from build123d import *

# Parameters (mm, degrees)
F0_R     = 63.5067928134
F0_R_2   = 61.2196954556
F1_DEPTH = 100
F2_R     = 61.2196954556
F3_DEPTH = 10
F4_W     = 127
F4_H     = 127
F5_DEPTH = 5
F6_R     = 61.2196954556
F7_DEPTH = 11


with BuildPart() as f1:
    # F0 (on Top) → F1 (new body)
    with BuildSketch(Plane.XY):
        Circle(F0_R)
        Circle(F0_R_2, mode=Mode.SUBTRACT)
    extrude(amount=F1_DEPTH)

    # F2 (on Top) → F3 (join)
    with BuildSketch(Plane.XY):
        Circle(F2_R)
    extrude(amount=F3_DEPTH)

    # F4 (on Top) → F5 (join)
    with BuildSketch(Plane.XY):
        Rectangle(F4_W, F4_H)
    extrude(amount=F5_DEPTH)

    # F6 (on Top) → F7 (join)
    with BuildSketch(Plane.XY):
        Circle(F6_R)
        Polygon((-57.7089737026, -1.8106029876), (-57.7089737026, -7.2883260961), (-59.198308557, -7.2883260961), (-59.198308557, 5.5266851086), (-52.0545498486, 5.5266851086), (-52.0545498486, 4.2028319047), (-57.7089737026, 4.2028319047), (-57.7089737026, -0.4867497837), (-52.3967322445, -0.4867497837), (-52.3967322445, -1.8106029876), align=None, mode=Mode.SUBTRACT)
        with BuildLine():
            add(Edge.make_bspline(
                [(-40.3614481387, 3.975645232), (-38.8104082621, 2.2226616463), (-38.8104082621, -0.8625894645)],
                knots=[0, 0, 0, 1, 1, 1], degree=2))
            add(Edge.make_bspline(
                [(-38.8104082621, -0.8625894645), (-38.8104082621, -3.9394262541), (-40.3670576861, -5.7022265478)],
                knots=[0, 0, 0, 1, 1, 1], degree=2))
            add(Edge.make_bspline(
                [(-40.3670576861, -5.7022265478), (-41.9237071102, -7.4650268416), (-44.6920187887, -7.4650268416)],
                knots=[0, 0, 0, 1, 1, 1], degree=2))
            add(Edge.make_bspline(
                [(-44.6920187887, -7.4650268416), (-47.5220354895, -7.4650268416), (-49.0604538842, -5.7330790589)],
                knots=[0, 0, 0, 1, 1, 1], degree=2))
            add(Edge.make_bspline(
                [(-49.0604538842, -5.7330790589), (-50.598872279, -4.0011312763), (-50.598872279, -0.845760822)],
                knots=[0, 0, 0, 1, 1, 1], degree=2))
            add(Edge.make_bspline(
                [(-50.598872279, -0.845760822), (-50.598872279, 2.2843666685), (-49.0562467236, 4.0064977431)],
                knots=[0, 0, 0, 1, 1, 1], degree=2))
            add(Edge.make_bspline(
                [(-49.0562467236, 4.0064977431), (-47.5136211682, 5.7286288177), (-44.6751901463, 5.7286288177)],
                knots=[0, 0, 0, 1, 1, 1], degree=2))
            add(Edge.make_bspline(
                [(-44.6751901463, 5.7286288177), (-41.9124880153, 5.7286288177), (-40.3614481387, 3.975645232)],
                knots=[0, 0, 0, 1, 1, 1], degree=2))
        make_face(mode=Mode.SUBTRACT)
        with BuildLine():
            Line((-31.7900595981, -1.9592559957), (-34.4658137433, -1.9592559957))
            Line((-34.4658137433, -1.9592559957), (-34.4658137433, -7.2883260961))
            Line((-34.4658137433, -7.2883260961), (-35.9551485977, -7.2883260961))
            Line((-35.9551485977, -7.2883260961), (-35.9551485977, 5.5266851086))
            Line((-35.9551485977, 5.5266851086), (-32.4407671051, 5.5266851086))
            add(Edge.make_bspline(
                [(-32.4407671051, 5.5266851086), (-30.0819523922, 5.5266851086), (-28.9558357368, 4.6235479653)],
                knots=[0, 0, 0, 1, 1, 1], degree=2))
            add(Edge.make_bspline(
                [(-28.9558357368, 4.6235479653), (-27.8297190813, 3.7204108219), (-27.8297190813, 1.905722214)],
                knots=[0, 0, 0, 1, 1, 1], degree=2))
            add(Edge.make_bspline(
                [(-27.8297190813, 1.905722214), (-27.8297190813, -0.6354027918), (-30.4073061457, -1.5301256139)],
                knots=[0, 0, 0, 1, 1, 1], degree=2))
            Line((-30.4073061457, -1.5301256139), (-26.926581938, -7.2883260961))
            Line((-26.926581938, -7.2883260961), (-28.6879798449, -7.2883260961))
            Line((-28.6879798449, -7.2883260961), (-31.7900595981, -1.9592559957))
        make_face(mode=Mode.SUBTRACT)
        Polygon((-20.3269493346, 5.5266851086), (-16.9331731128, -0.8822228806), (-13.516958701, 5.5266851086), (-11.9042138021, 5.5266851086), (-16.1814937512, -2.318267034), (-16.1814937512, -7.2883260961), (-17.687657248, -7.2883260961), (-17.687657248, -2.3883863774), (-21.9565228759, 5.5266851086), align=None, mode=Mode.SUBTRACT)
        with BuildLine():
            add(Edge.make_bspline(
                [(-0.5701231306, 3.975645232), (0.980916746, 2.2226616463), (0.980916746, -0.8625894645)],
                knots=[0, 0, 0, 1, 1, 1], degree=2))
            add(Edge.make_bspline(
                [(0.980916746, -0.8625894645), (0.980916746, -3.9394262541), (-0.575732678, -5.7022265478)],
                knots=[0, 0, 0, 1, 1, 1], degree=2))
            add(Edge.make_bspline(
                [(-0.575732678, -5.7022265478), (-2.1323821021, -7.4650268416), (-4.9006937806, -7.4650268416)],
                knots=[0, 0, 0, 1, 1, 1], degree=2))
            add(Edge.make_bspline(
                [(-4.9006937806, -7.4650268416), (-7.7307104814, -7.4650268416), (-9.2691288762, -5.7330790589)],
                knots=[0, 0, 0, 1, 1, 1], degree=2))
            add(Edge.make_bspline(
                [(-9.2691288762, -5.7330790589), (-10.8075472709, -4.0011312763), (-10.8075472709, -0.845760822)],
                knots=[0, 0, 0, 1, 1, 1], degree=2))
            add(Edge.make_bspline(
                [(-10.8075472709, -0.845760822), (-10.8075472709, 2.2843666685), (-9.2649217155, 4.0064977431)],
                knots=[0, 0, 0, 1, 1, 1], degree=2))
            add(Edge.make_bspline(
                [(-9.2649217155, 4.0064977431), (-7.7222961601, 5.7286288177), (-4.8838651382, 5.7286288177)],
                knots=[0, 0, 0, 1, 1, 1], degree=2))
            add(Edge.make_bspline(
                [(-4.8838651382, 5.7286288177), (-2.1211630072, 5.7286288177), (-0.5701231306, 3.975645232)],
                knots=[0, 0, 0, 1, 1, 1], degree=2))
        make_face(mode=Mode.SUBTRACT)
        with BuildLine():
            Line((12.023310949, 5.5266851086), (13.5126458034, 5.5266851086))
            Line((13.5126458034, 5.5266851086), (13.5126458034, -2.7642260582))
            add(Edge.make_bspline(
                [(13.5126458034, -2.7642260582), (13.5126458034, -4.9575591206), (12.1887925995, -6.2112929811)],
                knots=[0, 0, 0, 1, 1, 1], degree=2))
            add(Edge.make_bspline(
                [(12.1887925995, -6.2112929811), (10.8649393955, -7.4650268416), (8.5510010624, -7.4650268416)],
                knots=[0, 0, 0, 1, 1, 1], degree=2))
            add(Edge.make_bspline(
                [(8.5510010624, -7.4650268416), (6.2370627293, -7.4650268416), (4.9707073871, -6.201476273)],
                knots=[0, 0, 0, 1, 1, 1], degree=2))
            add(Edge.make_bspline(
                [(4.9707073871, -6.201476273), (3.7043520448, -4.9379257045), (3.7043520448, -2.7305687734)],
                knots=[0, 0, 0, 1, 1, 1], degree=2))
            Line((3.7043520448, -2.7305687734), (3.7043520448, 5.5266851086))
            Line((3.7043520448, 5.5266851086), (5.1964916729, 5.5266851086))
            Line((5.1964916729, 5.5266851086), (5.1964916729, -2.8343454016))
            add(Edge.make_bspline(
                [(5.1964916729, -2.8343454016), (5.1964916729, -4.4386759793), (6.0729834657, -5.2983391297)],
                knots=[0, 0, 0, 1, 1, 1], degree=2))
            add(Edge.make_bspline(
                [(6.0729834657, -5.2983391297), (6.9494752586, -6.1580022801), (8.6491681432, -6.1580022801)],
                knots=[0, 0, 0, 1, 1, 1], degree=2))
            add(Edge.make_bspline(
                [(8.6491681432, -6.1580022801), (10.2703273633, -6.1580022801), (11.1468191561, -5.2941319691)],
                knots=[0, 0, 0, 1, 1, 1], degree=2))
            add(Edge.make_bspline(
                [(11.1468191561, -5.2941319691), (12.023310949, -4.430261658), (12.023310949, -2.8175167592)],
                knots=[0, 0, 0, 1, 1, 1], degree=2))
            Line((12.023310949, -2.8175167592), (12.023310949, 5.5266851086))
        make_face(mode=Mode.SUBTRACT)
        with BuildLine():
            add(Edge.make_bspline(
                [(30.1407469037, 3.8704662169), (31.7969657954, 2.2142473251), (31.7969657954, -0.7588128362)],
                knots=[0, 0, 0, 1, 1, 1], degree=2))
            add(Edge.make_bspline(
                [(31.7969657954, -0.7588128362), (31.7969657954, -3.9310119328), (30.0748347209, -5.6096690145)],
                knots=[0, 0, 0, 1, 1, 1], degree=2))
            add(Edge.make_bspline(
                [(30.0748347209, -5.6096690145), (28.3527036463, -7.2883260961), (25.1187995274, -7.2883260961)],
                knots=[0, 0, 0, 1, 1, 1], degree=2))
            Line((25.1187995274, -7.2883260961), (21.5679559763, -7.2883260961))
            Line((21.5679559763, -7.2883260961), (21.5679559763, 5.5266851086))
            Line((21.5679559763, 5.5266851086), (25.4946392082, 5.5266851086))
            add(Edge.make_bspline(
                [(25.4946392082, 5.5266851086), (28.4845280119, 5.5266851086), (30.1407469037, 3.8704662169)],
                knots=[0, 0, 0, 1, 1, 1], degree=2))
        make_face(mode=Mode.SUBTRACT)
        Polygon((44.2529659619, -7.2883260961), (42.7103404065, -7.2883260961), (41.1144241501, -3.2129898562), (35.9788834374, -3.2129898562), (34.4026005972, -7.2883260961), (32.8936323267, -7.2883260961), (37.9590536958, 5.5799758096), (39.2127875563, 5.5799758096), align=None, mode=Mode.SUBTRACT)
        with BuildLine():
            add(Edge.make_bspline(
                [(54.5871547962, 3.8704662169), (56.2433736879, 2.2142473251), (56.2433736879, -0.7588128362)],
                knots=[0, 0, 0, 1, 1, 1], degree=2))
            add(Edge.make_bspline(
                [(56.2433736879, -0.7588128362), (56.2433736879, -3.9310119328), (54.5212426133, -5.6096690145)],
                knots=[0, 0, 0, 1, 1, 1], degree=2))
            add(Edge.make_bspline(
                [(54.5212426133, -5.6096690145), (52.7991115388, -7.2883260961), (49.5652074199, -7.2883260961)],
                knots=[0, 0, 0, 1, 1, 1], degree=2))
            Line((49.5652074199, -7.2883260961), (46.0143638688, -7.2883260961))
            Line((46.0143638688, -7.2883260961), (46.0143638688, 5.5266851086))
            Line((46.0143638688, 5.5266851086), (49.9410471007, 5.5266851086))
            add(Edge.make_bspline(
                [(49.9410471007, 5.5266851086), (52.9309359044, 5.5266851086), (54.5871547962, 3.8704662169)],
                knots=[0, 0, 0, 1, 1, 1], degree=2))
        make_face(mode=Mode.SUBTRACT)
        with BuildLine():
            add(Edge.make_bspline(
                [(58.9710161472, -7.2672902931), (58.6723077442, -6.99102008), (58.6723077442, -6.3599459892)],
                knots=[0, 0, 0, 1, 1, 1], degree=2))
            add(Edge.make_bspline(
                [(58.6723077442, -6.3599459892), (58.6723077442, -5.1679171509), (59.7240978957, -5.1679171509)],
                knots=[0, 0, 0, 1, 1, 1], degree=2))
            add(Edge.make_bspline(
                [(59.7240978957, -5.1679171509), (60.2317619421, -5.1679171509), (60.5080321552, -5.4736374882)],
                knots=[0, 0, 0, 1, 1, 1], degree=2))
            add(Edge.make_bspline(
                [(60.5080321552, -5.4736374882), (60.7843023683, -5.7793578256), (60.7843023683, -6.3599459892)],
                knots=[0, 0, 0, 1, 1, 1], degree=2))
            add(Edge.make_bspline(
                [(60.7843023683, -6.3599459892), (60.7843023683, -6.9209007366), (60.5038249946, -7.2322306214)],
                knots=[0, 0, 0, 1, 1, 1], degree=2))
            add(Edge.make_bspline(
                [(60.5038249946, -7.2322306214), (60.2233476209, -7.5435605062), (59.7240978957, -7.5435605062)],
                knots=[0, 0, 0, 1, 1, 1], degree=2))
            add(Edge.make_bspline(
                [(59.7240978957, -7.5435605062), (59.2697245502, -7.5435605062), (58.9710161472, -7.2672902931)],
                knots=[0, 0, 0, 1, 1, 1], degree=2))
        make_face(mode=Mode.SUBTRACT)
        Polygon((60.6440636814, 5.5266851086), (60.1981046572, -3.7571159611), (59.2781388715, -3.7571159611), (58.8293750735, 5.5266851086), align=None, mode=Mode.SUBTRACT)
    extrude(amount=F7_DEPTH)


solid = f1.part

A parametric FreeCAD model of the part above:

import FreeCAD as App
import Part
import Sketcher
from FreeCAD import Vector


def add_polygon(sketch, points):
    """Adds a closed chain of lines whose ends are joined by coincident constraints."""
    first, n = sketch.GeometryCount, len(points)
    for a, b in zip(points, points[1:] + points[:1]):
        sketch.addGeometry(Part.LineSegment(App.Vector(*a, 0), App.Vector(*b, 0)), False)
    for i in range(n):
        sketch.addConstraint(Sketcher.Constraint("Coincident", first + i, 2, first + (i + 1) % n, 1))

doc = App.newDocument("Part")
body = doc.addObject("PartDesign::Body", "Body")

sketch1 = doc.addObject("Sketcher::SketchObject", "Sketch")
body.addObject(sketch1)
sketch1.AttachmentSupport = (doc.XY_Plane, [""])
sketch1.MapMode = "FlatFace"
sketch1.addGeometry([
    Part.Circle(Vector(0, 0, 0), Vector(0, 0, 1), 64),
    Part.Circle(Vector(0, 0, 0), Vector(0, 0, 1), 61),
], False)
sketch1.addConstraint([
    Sketcher.Constraint("Coincident", 0, 3, -1, 1),
    Sketcher.Constraint("Coincident", 1, 3, -1, 1),
    Sketcher.Constraint("Diameter", 1, 122.439391),
    Sketcher.Constraint("Diameter", 0, 127.013586),
])
pad1 = doc.addObject("PartDesign::Pad", "Pad")
body.addObject(pad1)
pad1.Profile = sketch1
pad1.Length = 100

sketch2 = doc.addObject("Sketcher::SketchObject", "Sketch001")
body.addObject(sketch2)
sketch2.AttachmentSupport = (doc.XY_Plane, [""])
sketch2.MapMode = "FlatFace"
sketch2.addGeometry(Part.Circle(Vector(0, 0, 0), Vector(0, 0, 1), 61), False)
sketch2.addConstraint([
    Sketcher.Constraint("Coincident", 0, 3, -1, 1),
    Sketcher.Constraint("Diameter", 0, 122.439391),
])
pad2 = doc.addObject("PartDesign::Pad", "Pad001")
body.addObject(pad2)
pad2.Profile = sketch2
pad2.Length = 10

sketch3 = doc.addObject("Sketcher::SketchObject", "Sketch002")
body.addObject(sketch3)
sketch3.AttachmentSupport = (doc.XY_Plane, [""])
sketch3.MapMode = "FlatFace"
add_polygon(sketch3, [(-64, 64), (-64, -64), (64, -64), (64, 64)])
sketch3.addConstraint([
    Sketcher.Constraint("Vertical", 0),
    Sketcher.Constraint("Horizontal", 1),
    Sketcher.Constraint("Vertical", 2),
    Sketcher.Constraint("Horizontal", 3),
    Sketcher.Constraint("Symmetric", 0, 2, 2, 2, -1, 1),
    Sketcher.Constraint("Equal", 3, 0),
    Sketcher.Constraint("DistanceX", 1, 1, 1, 2, 127.0),
])
pad3 = doc.addObject("PartDesign::Pad", "Pad002")
body.addObject(pad3)
pad3.Profile = sketch3
pad3.Length = 5

sketch4 = doc.addObject("Sketcher::SketchObject", "Sketch003")
body.addObject(sketch4)
sketch4.AttachmentSupport = (doc.XY_Plane, [""])
sketch4.MapMode = "FlatFace"
sketch4.addGeometry(Part.Circle(Vector(0, 0, 0), Vector(0, 0, 1), 61.219695), False)
sketch4.addGeometry(Part.BSplineCurve([Vector(60.508032, -5.473637, 0), Vector(60.784302, -5.779358, 0), Vector(60.784302, -6.920901, 0), Vector(60.223348, -7.543561, 0), Vector(59.269725, -7.543561, 0), Vector(58.672308, -6.99102, 0), Vector(58.672308, -5.167917, 0), Vector(60.231762, -5.167917, 0), Vector(60.508032, -5.473637, 0)], [3, 1, 1, 1, 1, 1, 1, 3], [0, 1, 1.966183575, 2.93236715, 3.811702763, 4.691038376, 6.352005646, 7.153699181], False, 2, [1, 1, 1, 1, 1, 1, 1, 1, 1], False), False)
sketch4.addGeometry(Part.LineSegment(Vector(12.023311, -2.817517, 0), Vector(12.023311, 5.526685, 0)), False)
sketch4.addGeometry(Part.LineSegment(Vector(12.023311, 5.526685, 0), Vector(13.512646, 5.526685, 0)), False)
sketch4.addGeometry(Part.LineSegment(Vector(13.512646, 5.526685, 0), Vector(13.512646, -2.764226, 0)), False)
sketch4.addGeometry(Part.BSplineCurve([Vector(13.512646, -2.764226, 0), Vector(13.512646, -4.957559, 0), Vector(12.188793, -6.211293, 0)], [3, 3], [0, 1], False, 2, [1, 1, 1], False), False)
sketch4.addGeometry(Part.BSplineCurve([Vector(12.188793, -6.211293, 0), Vector(10.864939, -7.465027, 0), Vector(6.237063, -7.465027, 0), Vector(4.970707, -6.201476, 0)], [3, 1, 3], [0, 1, 2], False, 2, [1, 1, 1, 1], False), False)
sketch4.addGeometry(Part.BSplineCurve([Vector(4.970707, -6.201476, 0), Vector(3.704352, -4.937926, 0), Vector(3.704352, -2.730569, 0)], [3, 3], [0, 1], False, 2, [1, 1, 1], False), False)
sketch4.addGeometry(Part.LineSegment(Vector(3.704352, -2.730569, 0), Vector(3.704352, 5.526685, 0)), False)
sketch4.addGeometry(Part.LineSegment(Vector(3.704352, 5.526685, 0), Vector(5.196492, 5.526685, 0)), False)
sketch4.addGeometry(Part.LineSegment(Vector(5.196492, 5.526685, 0), Vector(5.196492, -2.834345, 0)), False)
sketch4.addGeometry(Part.BSplineCurve([Vector(5.196492, -2.834345, 0), Vector(5.196492, -4.438676, 0), Vector(6.072983, -5.298339, 0)], [3, 3], [0, 1], False, 2, [1, 1, 1], False), False)
sketch4.addGeometry(Part.BSplineCurve([Vector(6.072983, -5.298339, 0), Vector(6.949475, -6.158002, 0), Vector(10.270327, -6.158002, 0), Vector(12.023311, -4.430262, 0), Vector(12.023311, -2.817517, 0)], [3, 1, 1, 3], [0, 1, 1.95379538, 2.907590759], False, 2, [1, 1, 1, 1, 1], False), False)
add_polygon(sketch4, [(-52.396732, -1.810603), (-57.708974, -1.810603), (-57.708974, -7.288326), (-59.198309, -7.288326), (-59.198309, 5.526685), (-52.05455, 5.526685), (-52.05455, 4.202832), (-57.708974, 4.202832), (-57.708974, -0.48675), (-52.396732, -0.48675)])
sketch4.addGeometry(Part.BSplineCurve([Vector(-49.060454, -5.733079, 0), Vector(-50.598872, -4.001131, 0), Vector(-50.598872, 2.284367, 0), Vector(-47.513621, 5.728629, 0), Vector(-41.912488, 5.728629, 0), Vector(-38.810408, 2.222662, 0), Vector(-38.810408, -3.939426, 0), Vector(-40.367058, -5.702227, 0)], [3, 1, 1, 1, 1, 1, 3], [0, 1, 1.992, 2.984, 3.949533597, 4.915067193, 5.877967517], False, 2, [1, 1, 1, 1, 1, 1, 1, 1], False), False)
sketch4.addGeometry(Part.BSplineCurve([Vector(-40.367058, -5.702227, 0), Vector(-41.923707, -7.465027, 0), Vector(-47.522035, -7.465027, 0), Vector(-49.060454, -5.733079, 0)], [3, 1, 3], [0, 1, 2.022289767], False, 2, [1, 1, 1, 1], False), False)
sketch4.addGeometry(Part.LineSegment(Vector(-28.68798, -7.288326, 0), Vector(-31.79006, -1.959256, 0)), False)
sketch4.addGeometry(Part.LineSegment(Vector(-31.79006, -1.959256, 0), Vector(-34.465814, -1.959256, 0)), False)
sketch4.addGeometry(Part.LineSegment(Vector(-34.465814, -1.959256, 0), Vector(-34.465814, -7.288326, 0)), False)
sketch4.addGeometry(Part.LineSegment(Vector(-34.465814, -7.288326, 0), Vector(-35.955149, -7.288326, 0)), False)
sketch4.addGeometry(Part.LineSegment(Vector(-35.955149, -7.288326, 0), Vector(-35.955149, 5.526685, 0)), False)
sketch4.addGeometry(Part.LineSegment(Vector(-35.955149, 5.526685, 0), Vector(-32.440767, 5.526685, 0)), False)
sketch4.addGeometry(Part.BSplineCurve([Vector(-32.440767, 5.526685, 0), Vector(-30.081952, 5.526685, 0), Vector(-28.955836, 4.623548, 0)], [3, 3], [0, 1], False, 2, [1, 1, 1], False), False)
sketch4.addGeometry(Part.BSplineCurve([Vector(-28.955836, 4.623548, 0), Vector(-27.829719, 3.720411, 0), Vector(-27.829719, -0.635403, 0), Vector(-30.407306, -1.530126, 0)], [3, 1, 3], [0, 1, 2.400309119], False, 2, [1, 1, 1, 1], False), False)
sketch4.addGeometry(Part.LineSegment(Vector(-30.407306, -1.530126, 0), Vector(-26.926582, -7.288326, 0)), False)
sketch4.addGeometry(Part.LineSegment(Vector(-26.926582, -7.288326, 0), Vector(-28.68798, -7.288326, 0)), False)
add_polygon(sketch4, [(-21.956523, 5.526685), (-20.326949, 5.526685), (-16.933173, -0.882223), (-13.516959, 5.526685), (-11.904214, 5.526685), (-16.181494, -2.318267), (-16.181494, -7.288326), (-17.687657, -7.288326), (-17.687657, -2.388386)])
sketch4.addGeometry(Part.BSplineCurve([Vector(-9.269129, -5.733079, 0), Vector(-10.807547, -4.001131, 0), Vector(-10.807547, 2.284367, 0), Vector(-7.722296, 5.728629, 0), Vector(-2.121163, 5.728629, 0), Vector(0.980917, 2.222662, 0), Vector(0.980917, -3.939426, 0), Vector(-0.575733, -5.702227, 0)], [3, 1, 1, 1, 1, 1, 3], [0, 1, 1.992, 2.984, 3.949533597, 4.915067193, 5.877967517], False, 2, [1, 1, 1, 1, 1, 1, 1, 1], False), False)
sketch4.addGeometry(Part.BSplineCurve([Vector(-0.575733, -5.702227, 0), Vector(-2.132382, -7.465027, 0), Vector(-7.73071, -7.465027, 0), Vector(-9.269129, -5.733079, 0)], [3, 1, 3], [0, 1, 2.022289767], False, 2, [1, 1, 1, 1], False), False)
sketch4.addGeometry(Part.BSplineCurve([Vector(25.494639, 5.526685, 0), Vector(28.484528, 5.526685, 0), Vector(30.140747, 3.870466, 0)], [3, 3], [0, 1], False, 2, [1, 1, 1], False), False)
sketch4.addGeometry(Part.BSplineCurve([Vector(30.140747, 3.870466, 0), Vector(31.796966, 2.214247, 0), Vector(31.796966, -3.931012, 0), Vector(30.074835, -5.609669, 0)], [3, 1, 3], [0, 1, 2.066981132], False, 2, [1, 1, 1, 1], False), False)
sketch4.addGeometry(Part.BSplineCurve([Vector(30.074835, -5.609669, 0), Vector(28.352704, -7.288326, 0), Vector(25.1188, -7.288326, 0)], [3, 3], [0, 1], False, 2, [1, 1, 1], False), False)
sketch4.addGeometry(Part.LineSegment(Vector(25.1188, -7.288326, 0), Vector(21.567956, -7.288326, 0)), False)
sketch4.addGeometry(Part.LineSegment(Vector(21.567956, -7.288326, 0), Vector(21.567956, 5.526685, 0)), False)
sketch4.addGeometry(Part.LineSegment(Vector(21.567956, 5.526685, 0), Vector(25.494639, 5.526685, 0)), False)
add_polygon(sketch4, [(39.212788, 5.579976), (44.252966, -7.288326), (42.71034, -7.288326), (41.114424, -3.21299), (35.978883, -3.21299), (34.402601, -7.288326), (32.893632, -7.288326), (37.959054, 5.579976)])
sketch4.addGeometry(Part.BSplineCurve([Vector(49.941047, 5.526685, 0), Vector(52.930936, 5.526685, 0), Vector(54.587155, 3.870466, 0)], [3, 3], [0, 1], False, 2, [1, 1, 1], False), False)
sketch4.addGeometry(Part.BSplineCurve([Vector(54.587155, 3.870466, 0), Vector(56.243374, 2.214247, 0), Vector(56.243374, -3.931012, 0), Vector(52.799112, -7.288326, 0), Vector(49.565207, -7.288326, 0)], [3, 1, 1, 3], [0, 1, 2.066981132, 3.133962264], False, 2, [1, 1, 1, 1, 1], False), False)
sketch4.addGeometry(Part.LineSegment(Vector(49.565207, -7.288326, 0), Vector(46.014364, -7.288326, 0)), False)
sketch4.addGeometry(Part.LineSegment(Vector(46.014364, -7.288326, 0), Vector(46.014364, 5.526685, 0)), False)
sketch4.addGeometry(Part.LineSegment(Vector(46.014364, 5.526685, 0), Vector(49.941047, 5.526685, 0)), False)
add_polygon(sketch4, [(58.829375, 5.526685), (60.644064, 5.526685), (60.198105, -3.757116), (59.278139, -3.757116)])
sketch4.addConstraint([
    Sketcher.Constraint("Block", 1),
    Sketcher.Constraint("Block", 5),
    Sketcher.Constraint("Block", 6),
    Sketcher.Constraint("Block", 7),
    Sketcher.Constraint("Block", 11),
    Sketcher.Constraint("Block", 12),
    Sketcher.Constraint("Block", 23),
    Sketcher.Constraint("Block", 24),
    Sketcher.Constraint("Block", 31),
    Sketcher.Constraint("Block", 32),
    Sketcher.Constraint("Block", 44),
    Sketcher.Constraint("Block", 45),
    Sketcher.Constraint("Block", 46),
    Sketcher.Constraint("Block", 47),
    Sketcher.Constraint("Block", 48),
    Sketcher.Constraint("Block", 60),
    Sketcher.Constraint("Block", 61),
    Sketcher.Constraint("Coincident", 2, 2, 3, 1),
    Sketcher.Constraint("Coincident", 3, 2, 4, 1),
    Sketcher.Constraint("Coincident", 4, 2, 5, 1),
    Sketcher.Constraint("Coincident", 7, 2, 8, 1),
    Sketcher.Constraint("Coincident", 8, 2, 9, 1),
    Sketcher.Constraint("Coincident", 9, 2, 10, 1),
    Sketcher.Constraint("Coincident", 10, 2, 11, 1),
    Sketcher.Constraint("Coincident", 12, 2, 2, 1),
    Sketcher.Constraint("Coincident", 25, 2, 26, 1),
    Sketcher.Constraint("Coincident", 26, 2, 27, 1),
    Sketcher.Constraint("Coincident", 27, 2, 28, 1),
    Sketcher.Constraint("Coincident", 28, 2, 29, 1),
    Sketcher.Constraint("Coincident", 29, 2, 30, 1),
    Sketcher.Constraint("Coincident", 30, 2, 31, 1),
    Sketcher.Constraint("Coincident", 32, 2, 33, 1),
    Sketcher.Constraint("Coincident", 33, 2, 34, 1),
    Sketcher.Constraint("Coincident", 34, 2, 25, 1),
    Sketcher.Constraint("Coincident", 48, 2, 49, 1),
    Sketcher.Constraint("Coincident", 49, 2, 50, 1),
    Sketcher.Constraint("Coincident", 50, 2, 51, 1),
    Sketcher.Constraint("Coincident", 51, 2, 46, 1),
    Sketcher.Constraint("Coincident", 61, 2, 62, 1),
    Sketcher.Constraint("Coincident", 62, 2, 63, 1),
    Sketcher.Constraint("Coincident", 63, 2, 64, 1),
    Sketcher.Constraint("Coincident", 64, 2, 60, 1),
    Sketcher.Constraint("Vertical", 2),
    Sketcher.Constraint("Horizontal", 3),
    Sketcher.Constraint("Vertical", 4),
    Sketcher.Constraint("Vertical", 8),
    Sketcher.Constraint("Horizontal", 9),
    Sketcher.Constraint("Vertical", 10),
    Sketcher.Constraint("Horizontal", 13),
    Sketcher.Constraint("Vertical", 14),
    Sketcher.Constraint("Horizontal", 15),
    Sketcher.Constraint("Vertical", 16),
    Sketcher.Constraint("Horizontal", 17),
    Sketcher.Constraint("Vertical", 18),
    Sketcher.Constraint("Horizontal", 19),
    Sketcher.Constraint("Vertical", 20),
    Sketcher.Constraint("Horizontal", 21),
    Sketcher.Constraint("Vertical", 22),
    Sketcher.Constraint("Horizontal", 26),
    Sketcher.Constraint("Vertical", 27),
    Sketcher.Constraint("Horizontal", 28),
    Sketcher.Constraint("Vertical", 29),
    Sketcher.Constraint("Horizontal", 30),
    Sketcher.Constraint("Horizontal", 34),
    Sketcher.Constraint("Horizontal", 35),
    Sketcher.Constraint("Horizontal", 38),
    Sketcher.Constraint("Vertical", 40),
    Sketcher.Constraint("Horizontal", 41),
    Sketcher.Constraint("Vertical", 42),
    Sketcher.Constraint("Horizontal", 49),
    Sketcher.Constraint("Vertical", 50),
    Sketcher.Constraint("Horizontal", 51),
    Sketcher.Constraint("Horizontal", 53),
    Sketcher.Constraint("Horizontal", 55),
    Sketcher.Constraint("Horizontal", 57),
    Sketcher.Constraint("Horizontal", 59),
    Sketcher.Constraint("Horizontal", 62),
    Sketcher.Constraint("Vertical", 63),
    Sketcher.Constraint("Horizontal", 64),
    Sketcher.Constraint("Horizontal", 65),
    Sketcher.Constraint("Horizontal", 67),
    Sketcher.Constraint("Coincident", 0, 3, -1, 1),
    Sketcher.Constraint("Horizontal", 3, 2, 8, 2),
    Sketcher.Constraint("Horizontal", 9, 2, 16, 2),
    Sketcher.Constraint("Horizontal", 15, 2, 27, 2),
    Sketcher.Constraint("Horizontal", 17, 2, 29, 2),
    Sketcher.Constraint("Horizontal", 28, 2, 33, 2),
    Sketcher.Constraint("Horizontal", 30, 2, 35, 2),
    Sketcher.Constraint("Horizontal", 35, 2, 37, 2),
    Sketcher.Constraint("Horizontal", 34, 2, 40, 2),
    Sketcher.Constraint("Horizontal", 41, 2, 49, 2),
    Sketcher.Constraint("Horizontal", 49, 2, 52, 2),
    Sketcher.Constraint("Horizontal", 53, 2, 56, 2),
    Sketcher.Constraint("Horizontal", 64, 2, 65, 2),
    Sketcher.Constraint("Vertical", 14, 2, 19, 2),
    Sketcher.Constraint("Equal", 3, 15),
    Sketcher.Constraint("Equal", 15, 28),
    Sketcher.Constraint("Equal", 49, 62),
    Sketcher.Constraint("Equal", 18, 22),
    Sketcher.Constraint("Diameter", 0, 122.439391),
    Sketcher.Constraint("DistanceX", 13, 2, 13, 1, 5.312241),
    Sketcher.Constraint("DistanceX", 17, 1, 17, 2, 7.143759),
    Sketcher.Constraint("DistanceX", 30, 1, 30, 2, 3.514381),
    Sketcher.Constraint("DistanceX", 55, 2, 55, 1, 5.135541),
    Sketcher.Constraint("DistanceX", 57, 2, 57, 1, 1.508968),
    Sketcher.Constraint("DistanceX", 65, 1, 65, 2, 1.814689),
    Sketcher.Constraint("DistanceY", 20, 2, 20, 1, 4.689582),
    Sketcher.Constraint("DistanceY", 27, 2, 27, 1, 5.32907),
    Sketcher.Constraint("DistanceY", 40, 2, 40, 1, 4.970059),
    Sketcher.Constraint("DistanceY", 42, 1, 42, 2, 4.89994),
    Sketcher.Constraint("DistanceX", -1, 1, 56, 2, 34.402601),
    Sketcher.Constraint("DistanceX", 15, 2, 10, 2, 64.3948),
    Sketcher.Constraint("DistanceX", 29, 2, 35, 2, 15.628199),
    Sketcher.Constraint("DistanceX", 51, 2, 53, 2, 17.215701),
    Sketcher.Constraint("DistanceY", 56, 2, 58, 2, 12.868302),
    Sketcher.Constraint("DistanceX", 63, 2, 65, 2, 14.6297),
    Sketcher.Constraint("DistanceY", 66, 2, 65, 2, 9.283801),
    Sketcher.Constraint("Distance", 25, 6.166189),
    Sketcher.Constraint("Distance", 33, 6.72847),
    Sketcher.Constraint("Distance", 36, 7.252022),
    Sketcher.Constraint("Distance", 37, 7.262549),
    Sketcher.Constraint("Distance", 52, 13.820152),
    Sketcher.Constraint("Distance", 54, 4.376678),
    Sketcher.Constraint("Distance", 68, 9.294641),
    Sketcher.Constraint("DistanceX", 26, 2, 26, 1, 2.675754),
    Sketcher.Constraint("DistanceX", 35, 1, 35, 2, 1.629574),
    Sketcher.Constraint("DistanceX", 38, 1, 38, 2, 1.612745),
    Sketcher.Constraint("DistanceX", 41, 2, 41, 1, 1.506163),
    Sketcher.Constraint("DistanceX", 49, 2, 49, 1, 3.550844),
    Sketcher.Constraint("DistanceX", 53, 2, 53, 1, 1.542626),
    Sketcher.Constraint("DistanceX", 59, 1, 59, 2, 1.253734),
    Sketcher.Constraint("DistanceX", 67, 2, 67, 1, 0.919966),
    Sketcher.Constraint("DistanceY", 14, 2, 14, 1, 5.477723),
    Sketcher.Constraint("DistanceX", 37, 2, -1, 1, 13.516959),
    Sketcher.Constraint("DistanceY", 54, 2, -1, 1, 3.21299),
    Sketcher.Constraint("DistanceX", 36, 2, 39, 2, 0.751679),
])
pad4 = doc.addObject("PartDesign::Pad", "Pad003")
body.addObject(pad4)
pad4.Profile = sketch4
pad4.Length = 11

doc.recompute()
